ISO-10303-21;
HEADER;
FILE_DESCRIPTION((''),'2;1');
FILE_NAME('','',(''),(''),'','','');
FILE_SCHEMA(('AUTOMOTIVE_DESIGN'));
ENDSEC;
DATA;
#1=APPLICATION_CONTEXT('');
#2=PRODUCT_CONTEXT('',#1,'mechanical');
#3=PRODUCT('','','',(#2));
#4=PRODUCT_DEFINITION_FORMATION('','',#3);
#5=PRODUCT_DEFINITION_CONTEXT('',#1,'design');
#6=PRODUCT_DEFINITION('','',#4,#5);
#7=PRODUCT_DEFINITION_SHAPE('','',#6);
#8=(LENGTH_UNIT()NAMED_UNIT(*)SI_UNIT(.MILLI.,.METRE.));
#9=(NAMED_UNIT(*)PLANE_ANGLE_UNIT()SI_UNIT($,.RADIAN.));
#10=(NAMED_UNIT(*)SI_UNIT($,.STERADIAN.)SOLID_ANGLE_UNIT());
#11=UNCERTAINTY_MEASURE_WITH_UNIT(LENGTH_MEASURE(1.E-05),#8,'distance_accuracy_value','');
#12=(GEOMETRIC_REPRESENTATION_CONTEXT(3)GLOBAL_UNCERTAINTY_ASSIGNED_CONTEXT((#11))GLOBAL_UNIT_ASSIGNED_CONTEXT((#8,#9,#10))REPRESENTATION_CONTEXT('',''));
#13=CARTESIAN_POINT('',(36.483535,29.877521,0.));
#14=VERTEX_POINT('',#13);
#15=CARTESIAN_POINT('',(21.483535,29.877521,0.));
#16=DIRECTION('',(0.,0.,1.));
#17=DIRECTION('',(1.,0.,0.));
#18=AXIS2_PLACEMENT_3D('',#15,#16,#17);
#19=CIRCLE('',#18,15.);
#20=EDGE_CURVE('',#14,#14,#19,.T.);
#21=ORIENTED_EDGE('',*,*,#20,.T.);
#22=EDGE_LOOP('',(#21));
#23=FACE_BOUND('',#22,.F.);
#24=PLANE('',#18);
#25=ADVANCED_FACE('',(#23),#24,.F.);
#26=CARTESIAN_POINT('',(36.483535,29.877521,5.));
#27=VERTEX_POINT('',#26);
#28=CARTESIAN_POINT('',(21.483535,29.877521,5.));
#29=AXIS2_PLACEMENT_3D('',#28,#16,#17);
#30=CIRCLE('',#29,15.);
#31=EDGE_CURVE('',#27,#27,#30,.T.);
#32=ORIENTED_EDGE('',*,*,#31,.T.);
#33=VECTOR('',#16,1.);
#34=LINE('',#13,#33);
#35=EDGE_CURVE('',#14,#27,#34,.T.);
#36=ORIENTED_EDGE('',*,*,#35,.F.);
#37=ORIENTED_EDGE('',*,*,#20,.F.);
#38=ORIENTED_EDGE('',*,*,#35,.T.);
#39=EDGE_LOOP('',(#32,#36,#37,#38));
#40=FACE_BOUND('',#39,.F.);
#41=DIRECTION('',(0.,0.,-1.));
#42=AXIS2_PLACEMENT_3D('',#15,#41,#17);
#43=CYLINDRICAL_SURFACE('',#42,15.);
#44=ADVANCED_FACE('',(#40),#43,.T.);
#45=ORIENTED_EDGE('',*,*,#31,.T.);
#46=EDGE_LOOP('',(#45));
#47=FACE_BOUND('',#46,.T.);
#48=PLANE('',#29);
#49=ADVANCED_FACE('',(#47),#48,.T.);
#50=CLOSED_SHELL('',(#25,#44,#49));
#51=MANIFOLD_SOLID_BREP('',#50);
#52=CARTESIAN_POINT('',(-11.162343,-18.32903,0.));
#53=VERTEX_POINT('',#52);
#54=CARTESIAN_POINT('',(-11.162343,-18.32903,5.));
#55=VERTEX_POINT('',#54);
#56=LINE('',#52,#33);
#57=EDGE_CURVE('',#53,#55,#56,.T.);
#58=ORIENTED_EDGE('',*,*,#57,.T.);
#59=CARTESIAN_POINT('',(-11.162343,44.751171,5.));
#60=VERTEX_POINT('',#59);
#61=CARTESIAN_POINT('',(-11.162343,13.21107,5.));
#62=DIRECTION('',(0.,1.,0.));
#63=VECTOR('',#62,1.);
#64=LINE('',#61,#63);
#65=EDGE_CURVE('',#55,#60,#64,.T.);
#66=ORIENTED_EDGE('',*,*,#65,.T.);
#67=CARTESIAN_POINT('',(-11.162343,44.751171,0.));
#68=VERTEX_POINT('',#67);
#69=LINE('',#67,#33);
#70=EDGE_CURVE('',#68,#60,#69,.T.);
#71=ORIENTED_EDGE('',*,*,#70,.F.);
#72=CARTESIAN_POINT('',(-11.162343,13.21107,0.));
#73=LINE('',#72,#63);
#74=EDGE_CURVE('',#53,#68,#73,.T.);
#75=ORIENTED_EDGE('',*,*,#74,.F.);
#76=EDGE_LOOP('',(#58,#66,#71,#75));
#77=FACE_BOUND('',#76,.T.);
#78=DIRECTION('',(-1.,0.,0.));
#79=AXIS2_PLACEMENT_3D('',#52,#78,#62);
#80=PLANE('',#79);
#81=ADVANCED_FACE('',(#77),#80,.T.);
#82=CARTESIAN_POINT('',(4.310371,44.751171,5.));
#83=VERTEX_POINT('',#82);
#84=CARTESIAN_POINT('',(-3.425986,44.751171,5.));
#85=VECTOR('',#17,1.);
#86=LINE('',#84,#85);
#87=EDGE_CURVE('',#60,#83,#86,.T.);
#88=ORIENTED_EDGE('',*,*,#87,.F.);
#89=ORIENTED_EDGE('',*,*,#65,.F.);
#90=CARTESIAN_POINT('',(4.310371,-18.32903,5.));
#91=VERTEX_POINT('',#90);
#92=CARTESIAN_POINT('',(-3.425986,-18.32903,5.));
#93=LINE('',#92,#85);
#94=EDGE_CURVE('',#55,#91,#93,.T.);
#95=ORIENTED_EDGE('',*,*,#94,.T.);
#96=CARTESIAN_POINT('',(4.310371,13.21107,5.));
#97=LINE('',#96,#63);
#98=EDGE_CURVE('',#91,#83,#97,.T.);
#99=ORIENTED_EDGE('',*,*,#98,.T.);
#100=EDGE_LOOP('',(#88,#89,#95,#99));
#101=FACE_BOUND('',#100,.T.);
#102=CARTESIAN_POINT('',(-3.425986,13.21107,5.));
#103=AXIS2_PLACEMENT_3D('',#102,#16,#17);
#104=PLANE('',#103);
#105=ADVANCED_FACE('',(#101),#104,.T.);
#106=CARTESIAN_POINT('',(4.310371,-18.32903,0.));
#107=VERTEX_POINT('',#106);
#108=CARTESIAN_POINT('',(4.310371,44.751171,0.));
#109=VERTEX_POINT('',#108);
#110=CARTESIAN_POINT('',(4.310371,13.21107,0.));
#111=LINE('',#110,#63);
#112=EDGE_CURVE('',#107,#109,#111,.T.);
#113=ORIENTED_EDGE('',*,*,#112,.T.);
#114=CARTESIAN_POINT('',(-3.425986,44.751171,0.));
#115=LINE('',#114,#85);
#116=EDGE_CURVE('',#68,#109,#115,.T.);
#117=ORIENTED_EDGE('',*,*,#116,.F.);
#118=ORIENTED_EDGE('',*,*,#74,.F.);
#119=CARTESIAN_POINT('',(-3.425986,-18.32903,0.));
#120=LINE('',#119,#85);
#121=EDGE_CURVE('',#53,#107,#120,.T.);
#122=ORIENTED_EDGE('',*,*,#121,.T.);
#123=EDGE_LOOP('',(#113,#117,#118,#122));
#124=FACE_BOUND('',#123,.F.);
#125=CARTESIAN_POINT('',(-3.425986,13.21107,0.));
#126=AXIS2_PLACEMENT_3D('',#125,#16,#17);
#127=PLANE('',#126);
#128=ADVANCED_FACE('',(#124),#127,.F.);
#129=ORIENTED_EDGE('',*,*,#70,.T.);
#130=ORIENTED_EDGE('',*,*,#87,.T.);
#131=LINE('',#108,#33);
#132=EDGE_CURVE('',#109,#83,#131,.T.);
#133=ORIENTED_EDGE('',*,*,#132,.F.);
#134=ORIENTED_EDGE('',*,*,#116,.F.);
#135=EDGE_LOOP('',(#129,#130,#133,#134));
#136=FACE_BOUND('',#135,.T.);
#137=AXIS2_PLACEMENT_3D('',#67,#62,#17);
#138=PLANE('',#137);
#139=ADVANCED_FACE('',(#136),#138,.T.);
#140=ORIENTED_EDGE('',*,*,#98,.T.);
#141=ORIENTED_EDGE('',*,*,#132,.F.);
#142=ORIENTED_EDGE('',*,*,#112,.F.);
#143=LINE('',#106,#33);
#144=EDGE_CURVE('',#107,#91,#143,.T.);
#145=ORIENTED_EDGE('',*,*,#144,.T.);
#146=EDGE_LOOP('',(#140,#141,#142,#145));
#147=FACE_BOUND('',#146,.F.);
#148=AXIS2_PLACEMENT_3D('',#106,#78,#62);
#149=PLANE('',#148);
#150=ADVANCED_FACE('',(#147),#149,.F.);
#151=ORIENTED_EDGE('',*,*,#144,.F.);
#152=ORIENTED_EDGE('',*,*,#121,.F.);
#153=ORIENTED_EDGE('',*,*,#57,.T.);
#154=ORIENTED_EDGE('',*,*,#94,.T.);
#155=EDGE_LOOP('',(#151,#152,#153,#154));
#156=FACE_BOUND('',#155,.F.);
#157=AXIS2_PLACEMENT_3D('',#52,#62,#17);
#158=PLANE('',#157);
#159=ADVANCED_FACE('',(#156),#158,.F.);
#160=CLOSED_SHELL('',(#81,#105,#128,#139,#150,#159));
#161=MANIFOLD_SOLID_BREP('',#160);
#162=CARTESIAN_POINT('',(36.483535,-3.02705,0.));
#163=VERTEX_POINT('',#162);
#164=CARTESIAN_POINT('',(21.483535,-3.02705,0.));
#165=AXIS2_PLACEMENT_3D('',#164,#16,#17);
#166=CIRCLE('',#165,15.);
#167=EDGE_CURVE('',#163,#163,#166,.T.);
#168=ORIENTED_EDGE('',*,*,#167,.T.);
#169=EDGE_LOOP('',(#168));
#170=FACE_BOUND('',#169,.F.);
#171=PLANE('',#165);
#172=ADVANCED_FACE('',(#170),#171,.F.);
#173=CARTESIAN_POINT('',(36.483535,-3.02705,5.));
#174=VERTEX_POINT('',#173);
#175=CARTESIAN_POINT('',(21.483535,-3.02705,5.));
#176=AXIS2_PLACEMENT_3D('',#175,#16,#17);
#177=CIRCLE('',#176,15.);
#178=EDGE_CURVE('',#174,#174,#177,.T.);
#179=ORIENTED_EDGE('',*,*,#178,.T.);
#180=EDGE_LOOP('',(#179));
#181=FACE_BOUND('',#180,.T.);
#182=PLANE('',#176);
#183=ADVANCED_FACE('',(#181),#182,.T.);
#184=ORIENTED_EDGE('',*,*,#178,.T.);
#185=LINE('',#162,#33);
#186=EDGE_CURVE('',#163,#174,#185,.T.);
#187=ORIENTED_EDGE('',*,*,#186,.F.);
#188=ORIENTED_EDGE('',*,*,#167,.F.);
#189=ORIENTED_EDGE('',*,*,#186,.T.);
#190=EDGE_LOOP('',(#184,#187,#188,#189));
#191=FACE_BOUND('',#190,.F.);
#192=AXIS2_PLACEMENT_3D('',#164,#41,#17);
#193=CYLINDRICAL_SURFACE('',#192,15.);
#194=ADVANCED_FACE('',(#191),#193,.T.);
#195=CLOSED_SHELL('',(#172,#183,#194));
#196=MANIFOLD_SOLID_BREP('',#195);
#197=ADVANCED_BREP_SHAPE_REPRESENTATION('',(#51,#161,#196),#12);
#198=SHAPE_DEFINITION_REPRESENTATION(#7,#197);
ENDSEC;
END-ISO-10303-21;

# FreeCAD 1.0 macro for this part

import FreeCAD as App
import Part
import Sketcher

V = App.Vector

doc = App.newDocument("Part")
body = doc.addObject("PartDesign::Body", "Body")
body.AllowCompound = True

# Sketch on XY plane
sketch1 = body.newObject("Sketcher::SketchObject", "Sketch")
sketch1.AttachmentSupport = (doc.getObject("XY_Plane"), [""])
sketch1.MapMode = "FlatFace"
sketch1.addGeometry(Part.Circle(V(21.483535, 29.877521, 0), V(0, 0, 1), 15), False)
sketch1.addGeometry(Part.Circle(V(21.483535, -3.02705, 0), V(0, 0, 1), 15), False)
sketch1.addGeometry(Part.LineSegment(V(-11.162343, 44.751171, 0), V(-11.162343, -18.32903, 0)), False)
sketch1.addGeometry(Part.LineSegment(V(-11.162343, -18.32903, 0), V(4.310371, -18.32903, 0)), False)
sketch1.addGeometry(Part.LineSegment(V(4.310371, -18.32903, 0), V(4.310371, 44.751171, 0)), False)
sketch1.addGeometry(Part.LineSegment(V(4.310371, 44.751171, 0), V(-11.162343, 44.751171, 0)), False)
sketch1.addConstraint(Sketcher.Constraint("Coincident", 2, 2, 3, 1))
sketch1.addConstraint(Sketcher.Constraint("Coincident", 3, 2, 4, 1))
sketch1.addConstraint(Sketcher.Constraint("Coincident", 4, 2, 5, 1))
sketch1.addConstraint(Sketcher.Constraint("Coincident", 5, 2, 2, 1))
sketch1.addConstraint(Sketcher.Constraint("Vertical", 2))
sketch1.addConstraint(Sketcher.Constraint("Horizontal", 3))
sketch1.addConstraint(Sketcher.Constraint("Vertical", 4))
sketch1.addConstraint(Sketcher.Constraint("Horizontal", 5))
sketch1.addConstraint(Sketcher.Constraint("Equal", 0, 1))
sketch1.addConstraint(Sketcher.Constraint("Vertical", 0, 3, 1, 3))
sketch1.addConstraint(Sketcher.Constraint("Diameter", 0, 30.0))
sketch1.addConstraint(Sketcher.Constraint("DistanceY", 2, 2, 2, 1, 63.080201))
sketch1.addConstraint(Sketcher.Constraint("DistanceX", 3, 1, 3, 2, 15.472714))
sketch1.addConstraint(Sketcher.Constraint("DistanceY", -1, 1, 0, 3, 29.877521))
sketch1.addConstraint(Sketcher.Constraint("DistanceY", 1, 3, -1, 1, 3.02705))
sketch1.addConstraint(Sketcher.Constraint("DistanceY", 2, 2, -1, 1, 18.32903))
sketch1.addConstraint(Sketcher.Constraint("DistanceX", -1, 1, 3, 2, 4.310371))
sketch1.addConstraint(Sketcher.Constraint("DistanceX", -1, 1, 0, 3, 21.483535))
pad1 = body.newObject("PartDesign::Pad", "Pad")
pad1.Profile = sketch1
pad1.Length = 5

doc.recompute()
